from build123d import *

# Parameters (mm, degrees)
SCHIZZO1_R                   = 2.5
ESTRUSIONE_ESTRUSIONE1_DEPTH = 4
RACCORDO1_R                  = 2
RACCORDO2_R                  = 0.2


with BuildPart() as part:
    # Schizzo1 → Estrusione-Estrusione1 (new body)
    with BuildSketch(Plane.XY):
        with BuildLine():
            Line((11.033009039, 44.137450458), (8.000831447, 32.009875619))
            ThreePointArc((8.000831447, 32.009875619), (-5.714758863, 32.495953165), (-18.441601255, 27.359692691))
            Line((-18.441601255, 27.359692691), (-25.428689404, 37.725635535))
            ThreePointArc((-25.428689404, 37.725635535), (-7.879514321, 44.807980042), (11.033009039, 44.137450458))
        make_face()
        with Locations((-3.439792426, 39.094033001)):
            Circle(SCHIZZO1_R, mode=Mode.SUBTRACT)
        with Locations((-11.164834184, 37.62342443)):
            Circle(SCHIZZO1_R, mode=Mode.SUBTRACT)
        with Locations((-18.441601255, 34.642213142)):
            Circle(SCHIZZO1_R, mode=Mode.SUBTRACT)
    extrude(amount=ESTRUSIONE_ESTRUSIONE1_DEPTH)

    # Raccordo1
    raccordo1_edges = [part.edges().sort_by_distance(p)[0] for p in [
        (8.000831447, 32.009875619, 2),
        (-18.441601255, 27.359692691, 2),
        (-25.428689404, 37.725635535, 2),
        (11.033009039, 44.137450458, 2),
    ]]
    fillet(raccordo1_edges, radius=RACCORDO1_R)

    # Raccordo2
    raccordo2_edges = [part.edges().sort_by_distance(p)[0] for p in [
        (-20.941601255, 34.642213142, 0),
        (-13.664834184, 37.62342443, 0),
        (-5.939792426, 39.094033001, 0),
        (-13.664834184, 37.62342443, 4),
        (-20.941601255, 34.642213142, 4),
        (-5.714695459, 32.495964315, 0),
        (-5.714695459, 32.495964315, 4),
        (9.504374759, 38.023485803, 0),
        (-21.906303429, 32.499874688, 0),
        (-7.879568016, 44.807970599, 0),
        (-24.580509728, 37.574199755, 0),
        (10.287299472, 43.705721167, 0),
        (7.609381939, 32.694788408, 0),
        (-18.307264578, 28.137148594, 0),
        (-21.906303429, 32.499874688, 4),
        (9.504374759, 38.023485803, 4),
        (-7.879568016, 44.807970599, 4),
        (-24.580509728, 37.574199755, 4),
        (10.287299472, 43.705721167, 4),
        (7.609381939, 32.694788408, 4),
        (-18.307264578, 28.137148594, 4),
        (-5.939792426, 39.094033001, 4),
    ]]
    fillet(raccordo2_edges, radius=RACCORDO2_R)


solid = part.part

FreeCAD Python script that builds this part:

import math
import FreeCAD as App
import Part
import Sketcher
from FreeCAD import Vector


def edges_at(feature, points):
    """Names of the edges that pass closest to the given points."""
    edges = feature.Shape.Edges
    near = lambda p: min(range(len(edges)), key=lambda i: edges[i].distToShape(Part.Vertex(*p))[0])
    return sorted({f"Edge{near(p) + 1}" for p in points})

doc = App.newDocument("Part")
params = doc.addObject("Spreadsheet::Sheet", "Params")
for row, (alias, value) in enumerate([
    ("sketch1_diameter", "5 mm"),
    ("pad1_length", "4 mm"),
    ("fillet_radius", "2 mm"),
    ("fillet2_radius", "0.2 mm"),
], start=1):
    params.set(f"A{row}", alias)
    params.set(f"B{row}", "=" + value)
    params.setAlias(f"B{row}", alias)

body = doc.addObject("PartDesign::Body", "Body")

sketch1 = doc.addObject("Sketcher::SketchObject", "Sketch")
body.addObject(sketch1)
sketch1.AttachmentSupport = (doc.XY_Plane, [""])
sketch1.MapMode = "FlatFace"
sketch1.addGeometry([
    Part.LineSegment(Vector(8, 32, 0), Vector(11, 44.1, 0)),
    Part.ArcOfCircle(Part.Circle(Vector(0, 0, 0), Vector(0, 0, 1), 45.5), math.radians(76), math.radians(124)),
    Part.LineSegment(Vector(-25.4, 37.7, 0), Vector(-18.4, 27.4, 0)),
    Part.ArcOfCircle(Part.Circle(Vector(0, 0, 0), Vector(0, 0, 1), 33), math.radians(76), math.radians(124)),
    Part.Circle(Vector(-18.4, 34.6, 0), Vector(0, 0, 1), 2.5),
    Part.Circle(Vector(-3.4, 39.1, 0), Vector(0, 0, 1), 2.5),
    Part.Circle(Vector(-11.2, 37.6, 0), Vector(0, 0, 1), 2.5),
], False)
sketch1.addConstraint([
    Sketcher.Constraint("Coincident", 0, 2, 1, 1),
    Sketcher.Constraint("Coincident", 1, 2, 2, 1),
    Sketcher.Constraint("Coincident", 2, 2, 3, 2),
    Sketcher.Constraint("Coincident", 3, 1, 0, 1),
    Sketcher.Constraint("Coincident", 1, 3, -1, 1),
    Sketcher.Constraint("Coincident", 3, 3, -1, 1),
    Sketcher.Constraint("Equal", 4, 5),
    Sketcher.Constraint("Equal", 5, 6),
    Sketcher.Constraint("Vertical", 4, 3, 2, 2),
    Sketcher.Constraint("Diameter", 4, 5.0),
    Sketcher.Constraint("Radius", 1, 45.495514),
    Sketcher.Constraint("Radius", 3, 32.994627),
    Sketcher.Constraint("DistanceX", 4, 3, -1, 1, 18.441601),
    Sketcher.Constraint("DistanceX", 5, 3, 0, 2, 14.472801),
    Sketcher.Constraint("DistanceX", 1, 2, 0, 2, 36.461698),
    Sketcher.Constraint("DistanceX", -1, 1, 0, 2, 11.033009),
    Sketcher.Constraint("DistanceX", -1, 1, 3, 1, 8.000831),
    Sketcher.Constraint("DistanceY", 4, 3, 5, 3, 4.45182),
    Sketcher.Constraint("DistanceX", 6, 3, 5, 3, 7.725042),
    Sketcher.Constraint("DistanceY", 6, 3, 5, 3, 1.470609),
    Sketcher.Constraint("DistanceY", 6, 3, 1, 2, 0.102211),
])
sketch1.setExpression("Constraints[9]", "Params.sketch1_diameter")
pad1 = doc.addObject("PartDesign::Pad", "Pad")
body.addObject(pad1)
pad1.Profile = sketch1
pad1.setExpression("Length", "Params.pad1_length")
doc.recompute()

fillet = doc.addObject("PartDesign::Fillet", "Fillet")
body.addObject(fillet)
fillet.Base = (pad1, edges_at(pad1, [
    (8.001, 32.01, 2),
    (-18.442, 27.36, 2),
    (-25.429, 37.726, 2),
    (11.033, 44.137, 2),
]))
fillet.setExpression("Radius", "Params.fillet_radius")
doc.recompute()

fillet2 = doc.addObject("PartDesign::Fillet", "Fillet001")
body.addObject(fillet2)
fillet2.Base = (fillet, edges_at(fillet, [
    (-20.942, 34.642, 0),
    (-13.665, 37.623, 0),
    (-5.94, 39.094, 0),
    (-13.665, 37.623, 4),
    (-20.942, 34.642, 4),
    (-5.715, 32.496, 0),
    (-5.715, 32.496, 4),
    (9.504, 38.023, 0),
    (-21.906, 32.5, 0),
    (-7.88, 44.808, 0),
    (-24.581, 37.574, 0),
    (10.287, 43.706, 0),
    (7.609, 32.695, 0),
    (-18.307, 28.137, 0),
    (-21.906, 32.5, 4),
    (9.504, 38.023, 4),
    (-7.88, 44.808, 4),
    (-24.581, 37.574, 4),
    (10.287, 43.706, 4),
    (7.609, 32.695, 4),
    (-18.307, 28.137, 4),
    (-5.94, 39.094, 4),
]))
fillet2.setExpression("Radius", "Params.fillet2_radius")

doc.recompute()
